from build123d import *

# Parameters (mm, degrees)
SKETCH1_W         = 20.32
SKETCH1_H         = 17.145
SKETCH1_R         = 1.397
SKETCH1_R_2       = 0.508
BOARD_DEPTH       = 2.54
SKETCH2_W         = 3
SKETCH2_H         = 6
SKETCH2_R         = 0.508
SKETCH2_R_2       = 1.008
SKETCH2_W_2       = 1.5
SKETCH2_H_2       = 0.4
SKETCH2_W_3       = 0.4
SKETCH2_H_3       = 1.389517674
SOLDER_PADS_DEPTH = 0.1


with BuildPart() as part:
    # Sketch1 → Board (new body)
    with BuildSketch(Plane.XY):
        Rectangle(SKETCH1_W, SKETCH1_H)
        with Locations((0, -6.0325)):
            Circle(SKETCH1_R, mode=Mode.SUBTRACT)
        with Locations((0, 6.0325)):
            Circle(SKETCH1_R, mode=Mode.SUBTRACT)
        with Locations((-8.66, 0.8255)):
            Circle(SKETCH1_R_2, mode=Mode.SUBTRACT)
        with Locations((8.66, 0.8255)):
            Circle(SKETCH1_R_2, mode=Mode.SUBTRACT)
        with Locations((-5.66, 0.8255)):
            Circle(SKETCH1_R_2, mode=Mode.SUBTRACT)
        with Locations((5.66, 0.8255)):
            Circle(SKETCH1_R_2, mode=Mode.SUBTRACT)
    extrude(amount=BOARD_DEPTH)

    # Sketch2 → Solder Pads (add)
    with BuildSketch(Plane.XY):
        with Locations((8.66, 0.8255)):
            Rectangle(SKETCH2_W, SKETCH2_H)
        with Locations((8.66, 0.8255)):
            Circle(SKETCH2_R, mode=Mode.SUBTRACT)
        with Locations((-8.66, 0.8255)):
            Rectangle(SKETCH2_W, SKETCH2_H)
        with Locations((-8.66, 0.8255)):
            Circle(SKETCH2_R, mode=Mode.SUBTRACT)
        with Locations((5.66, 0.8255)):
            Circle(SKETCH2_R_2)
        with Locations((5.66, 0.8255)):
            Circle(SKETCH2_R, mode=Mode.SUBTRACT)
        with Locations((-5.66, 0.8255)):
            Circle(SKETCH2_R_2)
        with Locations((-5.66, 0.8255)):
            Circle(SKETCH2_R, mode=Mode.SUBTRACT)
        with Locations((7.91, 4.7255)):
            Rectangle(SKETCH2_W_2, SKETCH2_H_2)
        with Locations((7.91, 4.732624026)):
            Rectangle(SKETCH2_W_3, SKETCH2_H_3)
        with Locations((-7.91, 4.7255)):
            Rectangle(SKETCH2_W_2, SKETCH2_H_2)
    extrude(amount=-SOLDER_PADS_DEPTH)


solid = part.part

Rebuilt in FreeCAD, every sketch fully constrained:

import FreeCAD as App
import Part
import Sketcher

V = App.Vector

doc = App.newDocument("Part")
params = doc.addObject("Spreadsheet::Sheet", "Params")
for row, (alias, value) in enumerate([
    ("sketch1_width", "20.32 mm"),
    ("pad1_length", "2.54 mm"),
    ("sketch2_width", "3 mm"),
    ("sketch2_height", "6 mm"),
    ("sketch2_width2", "0.4 mm"),
    ("sketch2_width3", "1.5 mm"),
    ("pad2_length", "0.1 mm"),
], start=1):
    params.set(f"A{row}", alias)
    params.set(f"B{row}", "=" + value)
    params.setAlias(f"B{row}", alias)

body = doc.addObject("PartDesign::Body", "Body")

# Sketch on XY plane
sketch1 = body.newObject("Sketcher::SketchObject", "Sketch")
sketch1.AttachmentSupport = (doc.getObject("XY_Plane"), [""])
sketch1.MapMode = "FlatFace"
sketch1.addGeometry(Part.LineSegment(V(-10.16, 8.5725, 0), V(-10.16, -8.5725, 0)), False)
sketch1.addGeometry(Part.LineSegment(V(-10.16, -8.5725, 0), V(10.16, -8.5725, 0)), False)
sketch1.addGeometry(Part.LineSegment(V(10.16, -8.5725, 0), V(10.16, 8.5725, 0)), False)
sketch1.addGeometry(Part.LineSegment(V(10.16, 8.5725, 0), V(-10.16, 8.5725, 0)), False)
sketch1.addGeometry(Part.Circle(V(0, -6.0325, 0), V(0, 0, 1), 1.397), False)
sketch1.addGeometry(Part.Circle(V(-8.66, 0.8255, 0), V(0, 0, 1), 0.508), False)
sketch1.addGeometry(Part.Circle(V(-5.66, 0.8255, 0), V(0, 0, 1), 0.508), False)
sketch1.addGeometry(Part.Circle(V(5.66, 0.8255, 0), V(0, 0, 1), 0.508), False)
sketch1.addGeometry(Part.Circle(V(8.66, 0.8255, 0), V(0, 0, 1), 0.508), False)
sketch1.addGeometry(Part.Circle(V(0, 6.0325, 0), V(0, 0, 1), 1.397), False)
sketch1.addConstraint(Sketcher.Constraint("Coincident", 0, 2, 1, 1))
sketch1.addConstraint(Sketcher.Constraint("Coincident", 1, 2, 2, 1))
sketch1.addConstraint(Sketcher.Constraint("Coincident", 2, 2, 3, 1))
sketch1.addConstraint(Sketcher.Constraint("Coincident", 3, 2, 0, 1))
sketch1.addConstraint(Sketcher.Constraint("Vertical", 0))
sketch1.addConstraint(Sketcher.Constraint("Horizontal", 1))
sketch1.addConstraint(Sketcher.Constraint("Vertical", 2))
sketch1.addConstraint(Sketcher.Constraint("Horizontal", 3))
sketch1.addConstraint(Sketcher.Constraint("Equal", 5, 6))
sketch1.addConstraint(Sketcher.Constraint("Equal", 6, 7))
sketch1.addConstraint(Sketcher.Constraint("Equal", 7, 8))
sketch1.addConstraint(Sketcher.Constraint("Equal", 4, 9))
sketch1.addConstraint(Sketcher.Constraint("Symmetric", 4, 3, 9, 3, -1, 1))
sketch1.addConstraint(Sketcher.Constraint("Symmetric", 0, 2, 2, 2, -1, 1))
sketch1.addConstraint(Sketcher.Constraint("Symmetric", 6, 3, 7, 3, -2))
sketch1.addConstraint(Sketcher.Constraint("Symmetric", 5, 3, 8, 3, -2))
sketch1.addConstraint(Sketcher.Constraint("PointOnObject", 4, 3, -2))
sketch1.addConstraint(Sketcher.Constraint("Horizontal", 5, 3, 6, 3))
sketch1.addConstraint(Sketcher.Constraint("Diameter", 4, 2.794))
sketch1.addConstraint(Sketcher.Constraint("Diameter", 5, 1.016))
sketch1.addConstraint(Sketcher.Constraint("DistanceX", 5, 3, 6, 3, 3.0))
sketch1.addConstraint(Sketcher.Constraint("DistanceX", 1, 1, 1, 2, 20.32))
sketch1.addConstraint(Sketcher.Constraint("DistanceX", 0, 2, 5, 3, 1.5))
sketch1.addConstraint(Sketcher.Constraint("DistanceY", 0, 2, 0, 1, 17.145))
sketch1.addConstraint(Sketcher.Constraint("DistanceY", 0, 2, 4, 3, 2.54))
sketch1.addConstraint(Sketcher.Constraint("DistanceY", 4, 3, 5, 3, 6.858))
sketch1.setExpression("Constraints[21]", "Params.sketch1_width")
pad1 = body.newObject("PartDesign::Pad", "Pad")
pad1.Profile = sketch1
pad1.setExpression("Length", "Params.pad1_length")

# Sketch on XY plane
sketch2 = body.newObject("Sketcher::SketchObject", "Sketch001")
sketch2.AttachmentSupport = (doc.getObject("XY_Plane"), [""])
sketch2.MapMode = "FlatFace"
sketch2.addGeometry(Part.LineSegment(V(7.16, 3.8255, 0), V(7.16, -2.1745, 0)), False)
sketch2.addGeometry(Part.LineSegment(V(7.16, -2.1745, 0), V(10.16, -2.1745, 0)), False)
sketch2.addGeometry(Part.LineSegment(V(10.16, -2.1745, 0), V(10.16, 3.8255, 0)), False)
sketch2.addGeometry(Part.LineSegment(V(10.16, 3.8255, 0), V(7.16, 3.8255, 0)), False)
sketch2.addGeometry(Part.Circle(V(8.66, 0.8255, 0), V(0, 0, 1), 0.508), False)
sketch2.addGeometry(Part.LineSegment(V(-10.16, 3.8255, 0), V(-10.16, -2.1745, 0)), False)
sketch2.addGeometry(Part.LineSegment(V(-10.16, -2.1745, 0), V(-7.16, -2.1745, 0)), False)
sketch2.addGeometry(Part.LineSegment(V(-7.16, -2.1745, 0), V(-7.16, 3.8255, 0)), False)
sketch2.addGeometry(Part.LineSegment(V(-7.16, 3.8255, 0), V(-10.16, 3.8255, 0)), False)
sketch2.addGeometry(Part.Circle(V(-8.66, 0.8255, 0), V(0, 0, 1), 0.508), False)
sketch2.addGeometry(Part.Circle(V(5.66, 0.8255, 0), V(0, 0, 1), 1.008), False)
sketch2.addGeometry(Part.Circle(V(5.66, 0.8255, 0), V(0, 0, 1), 0.508), False)
sketch2.addGeometry(Part.Circle(V(-5.66, 0.8255, 0), V(0, 0, 1), 1.008), False)
sketch2.addGeometry(Part.Circle(V(-5.66, 0.8255, 0), V(0, 0, 1), 0.508), False)
sketch2.addGeometry(Part.LineSegment(V(7.16, 4.9255, 0), V(7.16, 4.5255, 0)), False)
sketch2.addGeometry(Part.LineSegment(V(7.16, 4.5255, 0), V(7.71, 4.5255, 0)), False)
sketch2.addGeometry(Part.LineSegment(V(7.71, 4.5255, 0), V(7.71, 4.037865, 0)), False)
sketch2.addGeometry(Part.LineSegment(V(7.71, 4.037865, 0), V(8.11, 4.037865, 0)), False)
sketch2.addGeometry(Part.LineSegment(V(8.11, 4.037865, 0), V(8.11, 4.5255, 0)), False)
sketch2.addGeometry(Part.LineSegment(V(8.11, 4.5255, 0), V(8.66, 4.5255, 0)), False)
sketch2.addGeometry(Part.LineSegment(V(8.66, 4.5255, 0), V(8.66, 4.9255, 0)), False)
sketch2.addGeometry(Part.LineSegment(V(8.66, 4.9255, 0), V(8.11, 4.9255, 0)), False)
sketch2.addGeometry(Part.LineSegment(V(8.11, 4.9255, 0), V(8.11, 5.427383, 0)), False)
sketch2.addGeometry(Part.LineSegment(V(8.11, 5.427383, 0), V(7.71, 5.427383, 0)), False)
sketch2.addGeometry(Part.LineSegment(V(7.71, 5.427383, 0), V(7.71, 4.9255, 0)), False)
sketch2.addGeometry(Part.LineSegment(V(7.71, 4.9255, 0), V(7.16, 4.9255, 0)), False)
sketch2.addGeometry(Part.LineSegment(V(-8.66, 4.9255, 0), V(-8.66, 4.5255, 0)), False)
sketch2.addGeometry(Part.LineSegment(V(-8.66, 4.5255, 0), V(-7.16, 4.5255, 0)), False)
sketch2.addGeometry(Part.LineSegment(V(-7.16, 4.5255, 0), V(-7.16, 4.9255, 0)), False)
sketch2.addGeometry(Part.LineSegment(V(-7.16, 4.9255, 0), V(-8.66, 4.9255, 0)), False)
sketch2.addConstraint(Sketcher.Constraint("Coincident", 0, 2, 1, 1))
sketch2.addConstraint(Sketcher.Constraint("Coincident", 1, 2, 2, 1))
sketch2.addConstraint(Sketcher.Constraint("Coincident", 2, 2, 3, 1))
sketch2.addConstraint(Sketcher.Constraint("Coincident", 3, 2, 0, 1))
sketch2.addConstraint(Sketcher.Constraint("Coincident", 5, 2, 6, 1))
sketch2.addConstraint(Sketcher.Constraint("Coincident", 6, 2, 7, 1))
sketch2.addConstraint(Sketcher.Constraint("Coincident", 7, 2, 8, 1))
sketch2.addConstraint(Sketcher.Constraint("Coincident", 8, 2, 5, 1))
sketch2.addConstraint(Sketcher.Constraint("Coincident", 14, 2, 15, 1))
sketch2.addConstraint(Sketcher.Constraint("Coincident", 15, 2, 16, 1))
sketch2.addConstraint(Sketcher.Constraint("Coincident", 16, 2, 17, 1))
sketch2.addConstraint(Sketcher.Constraint("Coincident", 17, 2, 18, 1))
sketch2.addConstraint(Sketcher.Constraint("Coincident", 18, 2, 19, 1))
sketch2.addConstraint(Sketcher.Constraint("Coincident", 19, 2, 20, 1))
sketch2.addConstraint(Sketcher.Constraint("Coincident", 20, 2, 21, 1))
sketch2.addConstraint(Sketcher.Constraint("Coincident", 21, 2, 22, 1))
sketch2.addConstraint(Sketcher.Constraint("Coincident", 22, 2, 23, 1))
sketch2.addConstraint(Sketcher.Constraint("Coincident", 23, 2, 24, 1))
sketch2.addConstraint(Sketcher.Constraint("Coincident", 24, 2, 25, 1))
sketch2.addConstraint(Sketcher.Constraint("Coincident", 25, 2, 14, 1))
sketch2.addConstraint(Sketcher.Constraint("Coincident", 26, 2, 27, 1))
sketch2.addConstraint(Sketcher.Constraint("Coincident", 27, 2, 28, 1))
sketch2.addConstraint(Sketcher.Constraint("Coincident", 28, 2, 29, 1))
sketch2.addConstraint(Sketcher.Constraint("Coincident", 29, 2, 26, 1))
sketch2.addConstraint(Sketcher.Constraint("Vertical", 0))
sketch2.addConstraint(Sketcher.Constraint("Horizontal", 1))
sketch2.addConstraint(Sketcher.Constraint("Vertical", 2))
sketch2.addConstraint(Sketcher.Constraint("Horizontal", 3))
sketch2.addConstraint(Sketcher.Constraint("Vertical", 5))
sketch2.addConstraint(Sketcher.Constraint("Horizontal", 6))
sketch2.addConstraint(Sketcher.Constraint("Vertical", 7))
sketch2.addConstraint(Sketcher.Constraint("Horizontal", 8))
sketch2.addConstraint(Sketcher.Constraint("Vertical", 14))
sketch2.addConstraint(Sketcher.Constraint("Horizontal", 15))
sketch2.addConstraint(Sketcher.Constraint("Vertical", 16))
sketch2.addConstraint(Sketcher.Constraint("Horizontal", 17))
sketch2.addConstraint(Sketcher.Constraint("Vertical", 18))
sketch2.addConstraint(Sketcher.Constraint("Horizontal", 19))
sketch2.addConstraint(Sketcher.Constraint("Vertical", 20))
sketch2.addConstraint(Sketcher.Constraint("Horizontal", 21))
sketch2.addConstraint(Sketcher.Constraint("Vertical", 22))
sketch2.addConstraint(Sketcher.Constraint("Horizontal", 23))
sketch2.addConstraint(Sketcher.Constraint("Vertical", 24))
sketch2.addConstraint(Sketcher.Constraint("Horizontal", 25))
sketch2.addConstraint(Sketcher.Constraint("Vertical", 26))
sketch2.addConstraint(Sketcher.Constraint("Horizontal", 27))
sketch2.addConstraint(Sketcher.Constraint("Vertical", 28))
sketch2.addConstraint(Sketcher.Constraint("Horizontal", 29))
sketch2.addConstraint(Sketcher.Constraint("Coincident", 11, 3, 10, 3))
sketch2.addConstraint(Sketcher.Constraint("Coincident", 13, 3, 12, 3))
sketch2.addConstraint(Sketcher.Constraint("Equal", 4, 9))
sketch2.addConstraint(Sketcher.Constraint("Equal", 9, 11))
sketch2.addConstraint(Sketcher.Constraint("Equal", 10, 12))
sketch2.addConstraint(Sketcher.Constraint("Equal", 11, 13))
sketch2.addConstraint(Sketcher.Constraint("Symmetric", 4, 3, 9, 3, -2))
sketch2.addConstraint(Sketcher.Constraint("Symmetric", 10, 3, 12, 3, -2))
sketch2.addConstraint(Sketcher.Constraint("Symmetric", 1, 2, 5, 2, -2))
sketch2.addConstraint(Sketcher.Constraint("Symmetric", 3, 2, 7, 2, -2))
sketch2.addConstraint(Sketcher.Constraint("Symmetric", 19, 2, 26, 2, -2))
sketch2.addConstraint(Sketcher.Constraint("Symmetric", 14, 2, 27, 2, -2))
sketch2.addConstraint(Sketcher.Constraint("Horizontal", 9, 3, 10, 3))
sketch2.addConstraint(Sketcher.Constraint("Horizontal", 21, 2, 24, 2))
sketch2.addConstraint(Sketcher.Constraint("Horizontal", 25, 2, 28, 2))
sketch2.addConstraint(Sketcher.Constraint("Vertical", 3, 2, 14, 2))
sketch2.addConstraint(Sketcher.Constraint("Vertical", 4, 3, 19, 2))
sketch2.addConstraint(Sketcher.Constraint("Vertical", 18, 2, 21, 2))
sketch2.addConstraint(Sketcher.Constraint("Vertical", 16, 2, 23, 2))
sketch2.addConstraint(Sketcher.Constraint("Equal", 15, 19))
sketch2.addConstraint(Sketcher.Constraint("Equal", 23, 14))
sketch2.addConstraint(Sketcher.Constraint("DistanceX", 1, 1, 1, 2, 3.0))
sketch2.addConstraint(Sketcher.Constraint("DistanceY", 0, 2, 0, 1, 6.0))
sketch2.addConstraint(Sketcher.Constraint("Diameter", 4, 1.016))
sketch2.addConstraint(Sketcher.Constraint("Diameter", 10, 2.016))
sketch2.addConstraint(Sketcher.Constraint("DistanceX", 17, 1, 17, 2, 0.4))
sketch2.addConstraint(Sketcher.Constraint("DistanceX", 27, 1, 27, 2, 1.5))
sketch2.addConstraint(Sketcher.Constraint("DistanceX", 10, 3, 4, 3, 3.0))
sketch2.addConstraint(Sketcher.Constraint("DistanceY", 0, 2, 4, 3, 3.0))
sketch2.addConstraint(Sketcher.Constraint("DistanceY", 3, 2, 14, 2, 0.7))
sketch2.addConstraint(Sketcher.Constraint("DistanceX", -1, 1, 4, 3, 8.66))
sketch2.addConstraint(Sketcher.Constraint("DistanceY", -1, 1, 4, 3, 0.8255))
sketch2.addConstraint(Sketcher.Constraint("DistanceY", 16, 2, 16, 1, 0.487635))
sketch2.addConstraint(Sketcher.Constraint("DistanceY", 22, 1, 22, 2, 0.501883))
sketch2.setExpression("Constraints[69]", "Params.sketch2_width")
sketch2.setExpression("Constraints[70]", "Params.sketch2_height")
sketch2.setExpression("Constraints[73]", "Params.sketch2_width2")
sketch2.setExpression("Constraints[74]", "Params.sketch2_width3")
pad2 = body.newObject("PartDesign::Pad", "Pad001")
pad2.Profile = sketch2
pad2.setExpression("Length", "Params.pad2_length")
pad2.Reversed = True

doc.recompute()
